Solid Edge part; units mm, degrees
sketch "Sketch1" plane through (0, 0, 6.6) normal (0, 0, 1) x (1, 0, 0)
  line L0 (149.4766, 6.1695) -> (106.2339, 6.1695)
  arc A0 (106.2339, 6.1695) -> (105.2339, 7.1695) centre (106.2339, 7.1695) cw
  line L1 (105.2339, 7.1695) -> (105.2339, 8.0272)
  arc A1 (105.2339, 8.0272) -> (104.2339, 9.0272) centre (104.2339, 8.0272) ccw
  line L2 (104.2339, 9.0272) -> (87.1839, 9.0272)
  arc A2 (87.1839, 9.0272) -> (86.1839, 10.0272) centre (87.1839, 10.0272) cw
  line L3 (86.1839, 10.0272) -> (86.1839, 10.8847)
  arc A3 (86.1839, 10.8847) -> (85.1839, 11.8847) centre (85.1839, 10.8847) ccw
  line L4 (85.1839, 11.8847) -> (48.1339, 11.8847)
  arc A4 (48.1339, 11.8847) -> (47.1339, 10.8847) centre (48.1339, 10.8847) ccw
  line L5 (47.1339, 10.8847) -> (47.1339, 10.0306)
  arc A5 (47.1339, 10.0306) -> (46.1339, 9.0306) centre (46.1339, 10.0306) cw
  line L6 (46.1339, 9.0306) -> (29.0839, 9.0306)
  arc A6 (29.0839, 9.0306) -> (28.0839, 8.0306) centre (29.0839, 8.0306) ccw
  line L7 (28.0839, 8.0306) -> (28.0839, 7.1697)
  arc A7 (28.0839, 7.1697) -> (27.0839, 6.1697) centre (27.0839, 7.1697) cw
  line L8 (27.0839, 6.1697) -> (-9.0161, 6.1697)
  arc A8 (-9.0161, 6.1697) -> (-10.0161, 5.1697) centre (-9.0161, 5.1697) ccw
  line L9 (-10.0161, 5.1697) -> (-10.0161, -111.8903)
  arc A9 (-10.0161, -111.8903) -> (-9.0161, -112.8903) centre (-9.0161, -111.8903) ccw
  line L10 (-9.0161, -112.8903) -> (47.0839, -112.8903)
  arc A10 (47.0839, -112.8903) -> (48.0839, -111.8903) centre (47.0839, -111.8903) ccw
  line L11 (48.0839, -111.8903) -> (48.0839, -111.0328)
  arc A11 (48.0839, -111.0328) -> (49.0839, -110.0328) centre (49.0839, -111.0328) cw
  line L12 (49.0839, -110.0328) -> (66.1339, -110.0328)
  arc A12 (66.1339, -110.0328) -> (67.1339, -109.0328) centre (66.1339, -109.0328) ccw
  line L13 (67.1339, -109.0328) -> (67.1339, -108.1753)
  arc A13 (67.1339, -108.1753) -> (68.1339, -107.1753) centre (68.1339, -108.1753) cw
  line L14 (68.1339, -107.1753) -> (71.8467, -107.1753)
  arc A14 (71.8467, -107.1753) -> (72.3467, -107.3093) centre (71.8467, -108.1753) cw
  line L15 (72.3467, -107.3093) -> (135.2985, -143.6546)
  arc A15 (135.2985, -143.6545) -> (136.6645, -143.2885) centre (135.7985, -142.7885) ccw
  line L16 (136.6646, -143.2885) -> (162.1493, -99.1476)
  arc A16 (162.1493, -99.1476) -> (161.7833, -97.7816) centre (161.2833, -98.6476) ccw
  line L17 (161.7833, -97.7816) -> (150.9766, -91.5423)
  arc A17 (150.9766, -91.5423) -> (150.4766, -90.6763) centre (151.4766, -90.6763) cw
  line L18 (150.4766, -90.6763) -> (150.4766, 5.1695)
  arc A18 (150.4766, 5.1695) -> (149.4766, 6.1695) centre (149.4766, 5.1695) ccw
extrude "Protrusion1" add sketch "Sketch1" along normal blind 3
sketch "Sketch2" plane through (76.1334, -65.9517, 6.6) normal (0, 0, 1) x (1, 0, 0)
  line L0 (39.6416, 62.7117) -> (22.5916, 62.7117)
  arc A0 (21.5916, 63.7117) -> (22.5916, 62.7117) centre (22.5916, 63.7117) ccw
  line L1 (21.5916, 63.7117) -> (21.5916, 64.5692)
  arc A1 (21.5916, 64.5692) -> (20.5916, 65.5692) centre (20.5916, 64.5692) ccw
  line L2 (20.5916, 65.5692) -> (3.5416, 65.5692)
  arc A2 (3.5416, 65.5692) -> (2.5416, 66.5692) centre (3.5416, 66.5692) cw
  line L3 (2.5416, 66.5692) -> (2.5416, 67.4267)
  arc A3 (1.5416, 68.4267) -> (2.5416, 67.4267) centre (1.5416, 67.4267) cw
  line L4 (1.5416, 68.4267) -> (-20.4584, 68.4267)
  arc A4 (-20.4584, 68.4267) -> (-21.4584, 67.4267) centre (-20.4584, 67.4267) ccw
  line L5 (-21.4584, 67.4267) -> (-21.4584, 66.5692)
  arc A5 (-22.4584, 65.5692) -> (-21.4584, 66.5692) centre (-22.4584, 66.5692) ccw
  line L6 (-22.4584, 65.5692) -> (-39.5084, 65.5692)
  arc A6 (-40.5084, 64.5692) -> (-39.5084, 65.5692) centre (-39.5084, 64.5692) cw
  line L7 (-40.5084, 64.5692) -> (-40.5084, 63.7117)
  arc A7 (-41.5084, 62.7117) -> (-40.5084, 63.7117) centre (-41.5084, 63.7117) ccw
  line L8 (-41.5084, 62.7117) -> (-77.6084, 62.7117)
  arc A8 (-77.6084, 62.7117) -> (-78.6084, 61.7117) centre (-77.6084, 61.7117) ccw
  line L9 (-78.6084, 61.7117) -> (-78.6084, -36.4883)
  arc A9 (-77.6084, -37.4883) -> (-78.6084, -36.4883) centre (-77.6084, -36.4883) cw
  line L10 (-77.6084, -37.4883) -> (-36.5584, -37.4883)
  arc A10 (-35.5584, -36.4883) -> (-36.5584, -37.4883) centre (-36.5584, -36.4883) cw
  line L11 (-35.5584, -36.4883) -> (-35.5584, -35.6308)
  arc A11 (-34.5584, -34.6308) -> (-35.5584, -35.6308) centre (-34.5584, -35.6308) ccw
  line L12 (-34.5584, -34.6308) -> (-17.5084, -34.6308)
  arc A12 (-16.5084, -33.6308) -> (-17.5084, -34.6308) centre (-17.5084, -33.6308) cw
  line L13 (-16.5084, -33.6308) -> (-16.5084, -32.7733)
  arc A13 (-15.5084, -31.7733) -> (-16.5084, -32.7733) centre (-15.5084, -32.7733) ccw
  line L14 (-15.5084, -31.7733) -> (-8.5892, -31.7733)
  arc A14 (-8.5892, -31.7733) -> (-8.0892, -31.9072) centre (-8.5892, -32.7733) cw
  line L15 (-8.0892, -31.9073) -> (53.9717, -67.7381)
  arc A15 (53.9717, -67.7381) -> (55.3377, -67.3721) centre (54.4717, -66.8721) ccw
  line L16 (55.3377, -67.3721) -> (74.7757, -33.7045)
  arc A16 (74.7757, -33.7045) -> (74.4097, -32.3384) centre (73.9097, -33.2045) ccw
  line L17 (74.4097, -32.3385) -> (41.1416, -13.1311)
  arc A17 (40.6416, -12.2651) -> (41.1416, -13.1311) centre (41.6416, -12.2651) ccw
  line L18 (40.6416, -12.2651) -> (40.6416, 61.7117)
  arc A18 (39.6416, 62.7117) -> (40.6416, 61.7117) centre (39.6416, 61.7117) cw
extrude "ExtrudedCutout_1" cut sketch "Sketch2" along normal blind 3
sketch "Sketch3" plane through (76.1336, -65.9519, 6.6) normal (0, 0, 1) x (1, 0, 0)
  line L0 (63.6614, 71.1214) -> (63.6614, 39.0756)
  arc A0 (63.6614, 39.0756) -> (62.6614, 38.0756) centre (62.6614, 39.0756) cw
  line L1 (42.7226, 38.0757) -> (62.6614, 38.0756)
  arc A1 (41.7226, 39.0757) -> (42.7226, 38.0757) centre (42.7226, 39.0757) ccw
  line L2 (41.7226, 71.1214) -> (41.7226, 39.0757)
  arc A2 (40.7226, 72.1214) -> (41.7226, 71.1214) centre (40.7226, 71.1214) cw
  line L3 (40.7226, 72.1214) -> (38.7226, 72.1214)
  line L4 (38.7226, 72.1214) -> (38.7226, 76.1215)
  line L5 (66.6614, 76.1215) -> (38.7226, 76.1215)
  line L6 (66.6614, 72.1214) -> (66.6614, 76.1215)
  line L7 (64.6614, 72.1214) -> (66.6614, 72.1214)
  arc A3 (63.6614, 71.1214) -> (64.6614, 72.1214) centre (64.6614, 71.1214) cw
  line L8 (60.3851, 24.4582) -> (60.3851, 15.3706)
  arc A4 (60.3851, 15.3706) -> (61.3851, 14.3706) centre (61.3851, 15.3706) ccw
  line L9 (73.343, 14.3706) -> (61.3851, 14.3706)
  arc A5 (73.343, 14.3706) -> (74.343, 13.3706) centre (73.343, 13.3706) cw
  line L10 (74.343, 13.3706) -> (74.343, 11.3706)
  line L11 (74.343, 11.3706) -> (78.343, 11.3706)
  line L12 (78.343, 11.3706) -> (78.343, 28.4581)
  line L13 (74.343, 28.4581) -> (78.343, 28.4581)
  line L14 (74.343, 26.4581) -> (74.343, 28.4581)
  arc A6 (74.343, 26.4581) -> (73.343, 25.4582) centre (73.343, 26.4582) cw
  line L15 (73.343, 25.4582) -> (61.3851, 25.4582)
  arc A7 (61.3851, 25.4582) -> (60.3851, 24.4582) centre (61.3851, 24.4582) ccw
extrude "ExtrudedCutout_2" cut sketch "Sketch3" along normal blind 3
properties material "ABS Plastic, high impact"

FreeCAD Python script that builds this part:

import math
import FreeCAD as App
import Part
import Sketcher
Q = App.Units.Quantity

doc = App.newDocument("Part")
params = doc.addObject("Spreadsheet::Sheet", "Params")
for row, (alias, value) in enumerate([
    ("sketch1_radius", "1 mm"),
    ("sketch1_width", "36.1 mm"),
    ("sketch1_width2", "56.1 mm"),
    ("sketch1_width3", "17.05 mm"),
    ("sketch1_width4", "37.05 mm"),
    ("pad1_length", "3 mm"),
    ("sketch2_radius", "1 mm"),
    ("sketch2_width", "22 mm"),
    ("sketch2_width2", "36.1 mm"),
    ("sketch2_height", "98.2 mm"),
    ("sketch2_width3", "17.05 mm"),
    ("pocket1_length", "3 mm"),
    ("sketch3_radius", "1 mm"),
    ("sketch3_width", "2 mm"),
    ("sketch3_width2", "4 mm"),
    ("pocket2_length", "3 mm"),
], start=1):
    params.set(f"A{row}", alias)
    params.set(f"B{row}", "=" + value)
    params.setAlias(f"B{row}", alias)

body = doc.addObject("PartDesign::Body", "Body")

sketch1 = body.newObject("Sketcher::SketchObject", "Sketch")
sketch1.AttachmentSupport = (doc.getObject("XY_Plane"), [""])
sketch1.MapMode = "FlatFace"
sketch1.AttachmentOffset = App.Placement(App.Vector(0, 0, 6.6), App.Rotation())
sketch1.addGeometry(Part.ArcOfCircle(Part.Circle(App.Vector(149.5, 5.2, 0), App.Vector(0, 0, 1), 1), math.radians(0), math.radians(90)), False)
sketch1.addGeometry(Part.LineSegment(App.Vector(149.5, 6.2, 0), App.Vector(106.2, 6.2, 0)), False)
sketch1.addGeometry(Part.ArcOfCircle(Part.Circle(App.Vector(106.2, 7.2, 0), App.Vector(0, 0, 1), 1), math.radians(180), math.radians(270)), False)
sketch1.addGeometry(Part.LineSegment(App.Vector(105.2, 7.2, 0), App.Vector(105.2, 8, 0)), False)
sketch1.addGeometry(Part.ArcOfCircle(Part.Circle(App.Vector(104.2, 8, 0), App.Vector(0, 0, 1), 1), math.radians(0), math.radians(90)), False)
sketch1.addGeometry(Part.LineSegment(App.Vector(104.2, 9, 0), App.Vector(87.2, 9, 0)), False)
sketch1.addGeometry(Part.ArcOfCircle(Part.Circle(App.Vector(87.2, 10, 0), App.Vector(0, 0, 1), 1), math.radians(180), math.radians(270)), False)
sketch1.addGeometry(Part.LineSegment(App.Vector(86.2, 10, 0), App.Vector(86.2, 10.9, 0)), False)
sketch1.addGeometry(Part.ArcOfCircle(Part.Circle(App.Vector(85.2, 10.9, 0), App.Vector(0, 0, 1), 1), math.radians(0), math.radians(90)), False)
sketch1.addGeometry(Part.LineSegment(App.Vector(85.2, 11.9, 0), App.Vector(48.1, 11.9, 0)), False)
sketch1.addGeometry(Part.ArcOfCircle(Part.Circle(App.Vector(48.1, 10.9, 0), App.Vector(0, 0, 1), 1), math.radians(90), math.radians(180)), False)
sketch1.addGeometry(Part.LineSegment(App.Vector(47.1, 10.9, 0), App.Vector(47.1, 10, 0)), False)
sketch1.addGeometry(Part.ArcOfCircle(Part.Circle(App.Vector(46.1, 10, 0), App.Vector(0, 0, 1), 1), math.radians(-90), math.radians(0)), False)
sketch1.addGeometry(Part.LineSegment(App.Vector(46.1, 9, 0), App.Vector(29.1, 9, 0)), False)
sketch1.addGeometry(Part.ArcOfCircle(Part.Circle(App.Vector(29.1, 8, 0), App.Vector(0, 0, 1), 1), math.radians(90), math.radians(180)), False)
sketch1.addGeometry(Part.LineSegment(App.Vector(28.1, 8, 0), App.Vector(28.1, 7.2, 0)), False)
sketch1.addGeometry(Part.ArcOfCircle(Part.Circle(App.Vector(27.1, 7.2, 0), App.Vector(0, 0, 1), 1), math.radians(-90), math.radians(0)), False)
sketch1.addGeometry(Part.LineSegment(App.Vector(27.1, 6.2, 0), App.Vector(-9, 6.2, 0)), False)
sketch1.addGeometry(Part.ArcOfCircle(Part.Circle(App.Vector(-9, 5.2, 0), App.Vector(0, 0, 1), 1), math.radians(90), math.radians(180)), False)
sketch1.addGeometry(Part.LineSegment(App.Vector(-10, 5.2, 0), App.Vector(-10, -111.9, 0)), False)
sketch1.addGeometry(Part.ArcOfCircle(Part.Circle(App.Vector(-9, -111.9, 0), App.Vector(0, 0, 1), 1), math.radians(180), math.radians(270)), False)
sketch1.addGeometry(Part.LineSegment(App.Vector(-9, -112.9, 0), App.Vector(47.1, -112.9, 0)), False)
sketch1.addGeometry(Part.ArcOfCircle(Part.Circle(App.Vector(47.1, -111.9, 0), App.Vector(0, 0, 1), 1), math.radians(-90), math.radians(0)), False)
sketch1.addGeometry(Part.LineSegment(App.Vector(48.1, -111.9, 0), App.Vector(48.1, -111, 0)), False)
sketch1.addGeometry(Part.ArcOfCircle(Part.Circle(App.Vector(49.1, -111, 0), App.Vector(0, 0, 1), 1), math.radians(90), math.radians(180)), False)
sketch1.addGeometry(Part.LineSegment(App.Vector(49.1, -110, 0), App.Vector(66.1, -110, 0)), False)
sketch1.addGeometry(Part.ArcOfCircle(Part.Circle(App.Vector(66.1, -109, 0), App.Vector(0, 0, 1), 1), math.radians(-90), math.radians(0)), False)
sketch1.addGeometry(Part.LineSegment(App.Vector(67.1, -109, 0), App.Vector(67.1, -108.2, 0)), False)
sketch1.addGeometry(Part.ArcOfCircle(Part.Circle(App.Vector(68.1, -108.2, 0), App.Vector(0, 0, 1), 1), math.radians(90), math.radians(180)), False)
sketch1.addGeometry(Part.LineSegment(App.Vector(68.1, -107.2, 0), App.Vector(71.8, -107.2, 0)), False)
sketch1.addGeometry(Part.ArcOfCircle(Part.Circle(App.Vector(71.8, -108.2, 0), App.Vector(0, 0, 1), 1), math.radians(60), math.radians(90)), False)
sketch1.addGeometry(Part.LineSegment(App.Vector(72.3, -107.3, 0), App.Vector(135.3, -143.7, 0)), False)
sketch1.addGeometry(Part.ArcOfCircle(Part.Circle(App.Vector(135.8, -142.8, 0), App.Vector(0, 0, 1), 1), math.radians(-120), math.radians(-30)), False)
sketch1.addGeometry(Part.LineSegment(App.Vector(136.7, -143.3, 0), App.Vector(162.1, -99.1, 0)), False)
sketch1.addGeometry(Part.ArcOfCircle(Part.Circle(App.Vector(161.3, -98.6, 0), App.Vector(0, 0, 1), 1), math.radians(-30), math.radians(60)), False)
sketch1.addGeometry(Part.LineSegment(App.Vector(161.8, -97.8, 0), App.Vector(151, -91.5, 0)), False)
sketch1.addGeometry(Part.ArcOfCircle(Part.Circle(App.Vector(151.5, -90.7, 0), App.Vector(0, 0, 1), 1), math.radians(180), math.radians(240)), False)
sketch1.addGeometry(Part.LineSegment(App.Vector(150.5, -90.7, 0), App.Vector(150.5, 5.2, 0)), False)
sketch1.addConstraint(Sketcher.Constraint("Tangent", 0, 2, 1, 1))
sketch1.addConstraint(Sketcher.Constraint("Tangent", 1, 2, 2, 2))
sketch1.addConstraint(Sketcher.Constraint("Tangent", 2, 1, 3, 1))
sketch1.addConstraint(Sketcher.Constraint("Tangent", 3, 2, 4, 1))
sketch1.addConstraint(Sketcher.Constraint("Tangent", 4, 2, 5, 1))
sketch1.addConstraint(Sketcher.Constraint("Tangent", 5, 2, 6, 2))
sketch1.addConstraint(Sketcher.Constraint("Tangent", 6, 1, 7, 1))
sketch1.addConstraint(Sketcher.Constraint("Tangent", 7, 2, 8, 1))
sketch1.addConstraint(Sketcher.Constraint("Tangent", 8, 2, 9, 1))
sketch1.addConstraint(Sketcher.Constraint("Tangent", 9, 2, 10, 1))
sketch1.addConstraint(Sketcher.Constraint("Tangent", 10, 2, 11, 1))
sketch1.addConstraint(Sketcher.Constraint("Tangent", 11, 2, 12, 2))
sketch1.addConstraint(Sketcher.Constraint("Tangent", 12, 1, 13, 1))
sketch1.addConstraint(Sketcher.Constraint("Tangent", 13, 2, 14, 1))
sketch1.addConstraint(Sketcher.Constraint("Tangent", 14, 2, 15, 1))
sketch1.addConstraint(Sketcher.Constraint("Tangent", 15, 2, 16, 2))
sketch1.addConstraint(Sketcher.Constraint("Tangent", 16, 1, 17, 1))
sketch1.addConstraint(Sketcher.Constraint("Tangent", 17, 2, 18, 1))
sketch1.addConstraint(Sketcher.Constraint("Tangent", 18, 2, 19, 1))
sketch1.addConstraint(Sketcher.Constraint("Tangent", 19, 2, 20, 1))
sketch1.addConstraint(Sketcher.Constraint("Tangent", 20, 2, 21, 1))
sketch1.addConstraint(Sketcher.Constraint("Tangent", 21, 2, 22, 1))
sketch1.addConstraint(Sketcher.Constraint("Tangent", 22, 2, 23, 1))
sketch1.addConstraint(Sketcher.Constraint("Tangent", 23, 2, 24, 2))
sketch1.addConstraint(Sketcher.Constraint("Tangent", 24, 1, 25, 1))
sketch1.addConstraint(Sketcher.Constraint("Tangent", 25, 2, 26, 1))
sketch1.addConstraint(Sketcher.Constraint("Tangent", 26, 2, 27, 1))
sketch1.addConstraint(Sketcher.Constraint("Tangent", 27, 2, 28, 2))
sketch1.addConstraint(Sketcher.Constraint("Tangent", 28, 1, 29, 1))
sketch1.addConstraint(Sketcher.Constraint("Tangent", 29, 2, 30, 2))
sketch1.addConstraint(Sketcher.Constraint("Tangent", 30, 1, 31, 1))
sketch1.addConstraint(Sketcher.Constraint("Tangent", 31, 2, 32, 1))
sketch1.addConstraint(Sketcher.Constraint("Tangent", 32, 2, 33, 1))
sketch1.addConstraint(Sketcher.Constraint("Tangent", 33, 2, 34, 1))
sketch1.addConstraint(Sketcher.Constraint("Tangent", 34, 2, 35, 1))
sketch1.addConstraint(Sketcher.Constraint("Tangent", 35, 2, 36, 2))
sketch1.addConstraint(Sketcher.Constraint("Tangent", 36, 1, 37, 1))
sketch1.addConstraint(Sketcher.Constraint("Tangent", 37, 2, 0, 1))
sketch1.addConstraint(Sketcher.Constraint("Horizontal", 1))
sketch1.addConstraint(Sketcher.Constraint("Vertical", 3))
sketch1.addConstraint(Sketcher.Constraint("Horizontal", 5))
sketch1.addConstraint(Sketcher.Constraint("Vertical", 7))
sketch1.addConstraint(Sketcher.Constraint("Horizontal", 9))
sketch1.addConstraint(Sketcher.Constraint("Vertical", 11))
sketch1.addConstraint(Sketcher.Constraint("Horizontal", 13))
sketch1.addConstraint(Sketcher.Constraint("Vertical", 15))
sketch1.addConstraint(Sketcher.Constraint("Horizontal", 17))
sketch1.addConstraint(Sketcher.Constraint("Vertical", 19))
sketch1.addConstraint(Sketcher.Constraint("Horizontal", 21))
sketch1.addConstraint(Sketcher.Constraint("Vertical", 23))
sketch1.addConstraint(Sketcher.Constraint("Horizontal", 25))
sketch1.addConstraint(Sketcher.Constraint("Vertical", 27))
sketch1.addConstraint(Sketcher.Constraint("Horizontal", 29))
sketch1.addConstraint(Sketcher.Constraint("Vertical", 37))
sketch1.addConstraint(Sketcher.Constraint("Equal", 0, 2))
sketch1.addConstraint(Sketcher.Constraint("Equal", 2, 4))
sketch1.addConstraint(Sketcher.Constraint("Equal", 4, 6))
sketch1.addConstraint(Sketcher.Constraint("Equal", 6, 8))
sketch1.addConstraint(Sketcher.Constraint("Equal", 8, 10))
sketch1.addConstraint(Sketcher.Constraint("Equal", 10, 12))
sketch1.addConstraint(Sketcher.Constraint("Equal", 12, 14))
sketch1.addConstraint(Sketcher.Constraint("Equal", 14, 16))
sketch1.addConstraint(Sketcher.Constraint("Equal", 16, 18))
sketch1.addConstraint(Sketcher.Constraint("Equal", 18, 20))
sketch1.addConstraint(Sketcher.Constraint("Equal", 20, 22))
sketch1.addConstraint(Sketcher.Constraint("Equal", 22, 24))
sketch1.addConstraint(Sketcher.Constraint("Equal", 24, 26))
sketch1.addConstraint(Sketcher.Constraint("Equal", 26, 28))
sketch1.addConstraint(Sketcher.Constraint("Equal", 28, 30))
sketch1.addConstraint(Sketcher.Constraint("Equal", 30, 32))
sketch1.addConstraint(Sketcher.Constraint("Equal", 32, 34))
sketch1.addConstraint(Sketcher.Constraint("Equal", 34, 36))
sketch1.addConstraint(Sketcher.Constraint("Perpendicular", 31, 33))
sketch1.addConstraint(Sketcher.Constraint("Perpendicular", 33, 35))
sketch1.addConstraint(Sketcher.Constraint("Horizontal", 2, 3, 16, 3))
sketch1.addConstraint(Sketcher.Constraint("Equal", 5, 13))
sketch1.addConstraint(Sketcher.Constraint("Equal", 13, 25))
sketch1.addConstraint(Sketcher.Constraint("Equal", 7, 23))
sketch1.addConstraint(Sketcher.Constraint("Equal", 23, 27))
sketch1.addConstraint(Sketcher.Constraint("Radius", 0, Q("1 mm")))
sketch1.addConstraint(Sketcher.Constraint("Angle", 31, Q("-30 deg")))
sketch1.addConstraint(Sketcher.Constraint("DistanceX", 17, 2, 17, 1, Q("36.1 mm")))
sketch1.addConstraint(Sketcher.Constraint("DistanceX", 21, 1, 21, 2, Q("56.1 mm")))
sketch1.addConstraint(Sketcher.Constraint("DistanceX", 5, 2, 5, 1, Q("17.05 mm")))
sketch1.addConstraint(Sketcher.Constraint("DistanceX", 9, 2, 9, 1, Q("37.05 mm")))
sketch1.addConstraint(Sketcher.Constraint("DistanceY", 19, 2, 19, 1, Q("117.06 mm")))
sketch1.addConstraint(Sketcher.Constraint("DistanceY", 11, 2, 11, 1, Q("0.854 mm")))
sketch1.addConstraint(Sketcher.Constraint("DistanceY", 15, 2, 15, 1, Q("0.861 mm")))
sketch1.addConstraint(Sketcher.Constraint("DistanceY", 26, 3, 6, 3, Q("119.06 mm")))
sketch1.addConstraint(Sketcher.Constraint("DistanceX", 30, 3, 36, 3, Q("79.63 mm")))
sketch1.addConstraint(Sketcher.Constraint("DistanceX", 1, 2, 1, 1, Q("43.2427 mm")))
sketch1.addConstraint(Sketcher.Constraint("DistanceY", 37, 1, 37, 2, Q("95.8458 mm")))
sketch1.addConstraint(Sketcher.Constraint("DistanceX", -1, 1, 2, 3, Q("106.234 mm")))
sketch1.addConstraint(Sketcher.Constraint("DistanceY", 34, 3, 0, 3, Q("103.817 mm")))
sketch1.addConstraint(Sketcher.Constraint("DistanceY", -1, 1, 0, 3, Q("5.1695 mm")))
sketch1.setExpression("Constraints[79]", "Params.sketch1_radius")
sketch1.setExpression("Constraints[81]", "Params.sketch1_width")
sketch1.setExpression("Constraints[82]", "Params.sketch1_width2")
sketch1.setExpression("Constraints[83]", "Params.sketch1_width3")
sketch1.setExpression("Constraints[84]", "Params.sketch1_width4")
pad1 = body.newObject("PartDesign::Pad", "Pad")
pad1.Profile = sketch1
pad1.setExpression("Length", "Params.pad1_length")

sketch2 = body.newObject("Sketcher::SketchObject", "Sketch001")
sketch2.AttachmentSupport = (doc.getObject("XY_Plane"), [""])
sketch2.MapMode = "FlatFace"
sketch2.AttachmentOffset = App.Placement(App.Vector(0, 0, 6.6), App.Rotation())
sketch2.addGeometry(Part.ArcOfCircle(Part.Circle(App.Vector(115.8, -4.2, 0), App.Vector(0, 0, 1), 1), math.radians(0), math.radians(90)), False)
sketch2.addGeometry(Part.LineSegment(App.Vector(115.8, -3.2, 0), App.Vector(98.7, -3.2, 0)), False)
sketch2.addGeometry(Part.ArcOfCircle(Part.Circle(App.Vector(98.7, -2.2, 0), App.Vector(0, 0, 1), 1), math.radians(180), math.radians(270)), False)
sketch2.addGeometry(Part.LineSegment(App.Vector(97.7, -2.2, 0), App.Vector(97.7, -1.4, 0)), False)
sketch2.addGeometry(Part.ArcOfCircle(Part.Circle(App.Vector(96.7, -1.4, 0), App.Vector(0, 0, 1), 1), math.radians(0), math.radians(90)), False)
sketch2.addGeometry(Part.LineSegment(App.Vector(96.7, -0.4, 0), App.Vector(79.7, -0.4, 0)), False)
sketch2.addGeometry(Part.ArcOfCircle(Part.Circle(App.Vector(79.7, 0.6, 0), App.Vector(0, 0, 1), 1), math.radians(180), math.radians(270)), False)
sketch2.addGeometry(Part.LineSegment(App.Vector(78.7, 0.6, 0), App.Vector(78.7, 1.5, 0)), False)
sketch2.addGeometry(Part.ArcOfCircle(Part.Circle(App.Vector(77.7, 1.5, 0), App.Vector(0, 0, 1), 1), math.radians(0), math.radians(90)), False)
sketch2.addGeometry(Part.LineSegment(App.Vector(77.7, 2.5, 0), App.Vector(55.7, 2.5, 0)), False)
sketch2.addGeometry(Part.ArcOfCircle(Part.Circle(App.Vector(55.7, 1.5, 0), App.Vector(0, 0, 1), 1), math.radians(90), math.radians(180)), False)
sketch2.addGeometry(Part.LineSegment(App.Vector(54.7, 1.5, 0), App.Vector(54.7, 0.6, 0)), False)
sketch2.addGeometry(Part.ArcOfCircle(Part.Circle(App.Vector(53.7, 0.6, 0), App.Vector(0, 0, 1), 1), math.radians(-90), math.radians(0)), False)
sketch2.addGeometry(Part.LineSegment(App.Vector(53.7, -0.4, 0), App.Vector(36.6, -0.4, 0)), False)
sketch2.addGeometry(Part.ArcOfCircle(Part.Circle(App.Vector(36.6, -1.4, 0), App.Vector(0, 0, 1), 1), math.radians(90), math.radians(180)), False)
sketch2.addGeometry(Part.LineSegment(App.Vector(35.6, -1.4, 0), App.Vector(35.6, -2.2, 0)), False)
sketch2.addGeometry(Part.ArcOfCircle(Part.Circle(App.Vector(34.6, -2.2, 0), App.Vector(0, 0, 1), 1), math.radians(-90), math.radians(0)), False)
sketch2.addGeometry(Part.LineSegment(App.Vector(34.6, -3.2, 0), App.Vector(-1.5, -3.2, 0)), False)
sketch2.addGeometry(Part.ArcOfCircle(Part.Circle(App.Vector(-1.5, -4.2, 0), App.Vector(0, 0, 1), 1), math.radians(90), math.radians(180)), False)
sketch2.addGeometry(Part.LineSegment(App.Vector(-2.5, -4.2, 0), App.Vector(-2.5, -102.4, 0)), False)
sketch2.addGeometry(Part.ArcOfCircle(Part.Circle(App.Vector(-1.5, -102.4, 0), App.Vector(0, 0, 1), 1), math.radians(180), math.radians(270)), False)
sketch2.addGeometry(Part.LineSegment(App.Vector(-1.5, -103.4, 0), App.Vector(39.6, -103.4, 0)), False)
sketch2.addGeometry(Part.ArcOfCircle(Part.Circle(App.Vector(39.6, -102.4, 0), App.Vector(0, 0, 1), 1), math.radians(-90), math.radians(0)), False)
sketch2.addGeometry(Part.LineSegment(App.Vector(40.6, -102.4, 0), App.Vector(40.6, -101.6, 0)), False)
sketch2.addGeometry(Part.ArcOfCircle(Part.Circle(App.Vector(41.6, -101.6, 0), App.Vector(0, 0, 1), 1), math.radians(90), math.radians(180)), False)
sketch2.addGeometry(Part.LineSegment(App.Vector(41.6, -100.6, 0), App.Vector(58.6, -100.6, 0)), False)
sketch2.addGeometry(Part.ArcOfCircle(Part.Circle(App.Vector(58.6, -99.6, 0), App.Vector(0, 0, 1), 1), math.radians(-90), math.radians(0)), False)
sketch2.addGeometry(Part.LineSegment(App.Vector(59.6, -99.6, 0), App.Vector(59.6, -98.7, 0)), False)
sketch2.addGeometry(Part.ArcOfCircle(Part.Circle(App.Vector(60.6, -98.7, 0), App.Vector(0, 0, 1), 1), math.radians(90), math.radians(180)), False)
sketch2.addGeometry(Part.LineSegment(App.Vector(60.6, -97.7, 0), App.Vector(67.5, -97.7, 0)), False)
sketch2.addGeometry(Part.ArcOfCircle(Part.Circle(App.Vector(67.5, -98.7, 0), App.Vector(0, 0, 1), 1), math.radians(60), math.radians(90)), False)
sketch2.addGeometry(Part.LineSegment(App.Vector(68, -97.9, 0), App.Vector(130.1, -133.7, 0)), False)
sketch2.addGeometry(Part.ArcOfCircle(Part.Circle(App.Vector(130.6, -132.8, 0), App.Vector(0, 0, 1), 1), math.radians(-120), math.radians(-30)), False)
sketch2.addGeometry(Part.LineSegment(App.Vector(131.5, -133.3, 0), App.Vector(150.9, -99.7, 0)), False)
sketch2.addGeometry(Part.ArcOfCircle(Part.Circle(App.Vector(150, -99.2, 0), App.Vector(0, 0, 1), 1), math.radians(-30), math.radians(60)), False)
sketch2.addGeometry(Part.LineSegment(App.Vector(150.5, -98.3, 0), App.Vector(117.3, -79.1, 0)), False)
sketch2.addGeometry(Part.ArcOfCircle(Part.Circle(App.Vector(117.8, -78.2, 0), App.Vector(0, 0, 1), 1), math.radians(180), math.radians(240)), False)
sketch2.addGeometry(Part.LineSegment(App.Vector(116.8, -78.2, 0), App.Vector(116.8, -4.2, 0)), False)
sketch2.addConstraint(Sketcher.Constraint("Tangent", 0, 2, 1, 1))
sketch2.addConstraint(Sketcher.Constraint("Tangent", 1, 2, 2, 2))
sketch2.addConstraint(Sketcher.Constraint("Tangent", 2, 1, 3, 1))
sketch2.addConstraint(Sketcher.Constraint("Tangent", 3, 2, 4, 1))
sketch2.addConstraint(Sketcher.Constraint("Tangent", 4, 2, 5, 1))
sketch2.addConstraint(Sketcher.Constraint("Tangent", 5, 2, 6, 2))
sketch2.addConstraint(Sketcher.Constraint("Tangent", 6, 1, 7, 1))
sketch2.addConstraint(Sketcher.Constraint("Tangent", 7, 2, 8, 1))
sketch2.addConstraint(Sketcher.Constraint("Tangent", 8, 2, 9, 1))
sketch2.addConstraint(Sketcher.Constraint("Tangent", 9, 2, 10, 1))
sketch2.addConstraint(Sketcher.Constraint("Tangent", 10, 2, 11, 1))
sketch2.addConstraint(Sketcher.Constraint("Tangent", 11, 2, 12, 2))
sketch2.addConstraint(Sketcher.Constraint("Tangent", 12, 1, 13, 1))
sketch2.addConstraint(Sketcher.Constraint("Tangent", 13, 2, 14, 1))
sketch2.addConstraint(Sketcher.Constraint("Tangent", 14, 2, 15, 1))
sketch2.addConstraint(Sketcher.Constraint("Tangent", 15, 2, 16, 2))
sketch2.addConstraint(Sketcher.Constraint("Tangent", 16, 1, 17, 1))
sketch2.addConstraint(Sketcher.Constraint("Tangent", 17, 2, 18, 1))
sketch2.addConstraint(Sketcher.Constraint("Tangent", 18, 2, 19, 1))
sketch2.addConstraint(Sketcher.Constraint("Tangent", 19, 2, 20, 1))
sketch2.addConstraint(Sketcher.Constraint("Tangent", 20, 2, 21, 1))
sketch2.addConstraint(Sketcher.Constraint("Tangent", 21, 2, 22, 1))
sketch2.addConstraint(Sketcher.Constraint("Tangent", 22, 2, 23, 1))
sketch2.addConstraint(Sketcher.Constraint("Tangent", 23, 2, 24, 2))
sketch2.addConstraint(Sketcher.Constraint("Tangent", 24, 1, 25, 1))
sketch2.addConstraint(Sketcher.Constraint("Tangent", 25, 2, 26, 1))
sketch2.addConstraint(Sketcher.Constraint("Tangent", 26, 2, 27, 1))
sketch2.addConstraint(Sketcher.Constraint("Tangent", 27, 2, 28, 2))
sketch2.addConstraint(Sketcher.Constraint("Tangent", 28, 1, 29, 1))
sketch2.addConstraint(Sketcher.Constraint("Tangent", 29, 2, 30, 2))
sketch2.addConstraint(Sketcher.Constraint("Tangent", 30, 1, 31, 1))
sketch2.addConstraint(Sketcher.Constraint("Tangent", 31, 2, 32, 1))
sketch2.addConstraint(Sketcher.Constraint("Tangent", 32, 2, 33, 1))
sketch2.addConstraint(Sketcher.Constraint("Tangent", 33, 2, 34, 1))
sketch2.addConstraint(Sketcher.Constraint("Tangent", 34, 2, 35, 1))
sketch2.addConstraint(Sketcher.Constraint("Tangent", 35, 2, 36, 2))
sketch2.addConstraint(Sketcher.Constraint("Tangent", 36, 1, 37, 1))
sketch2.addConstraint(Sketcher.Constraint("Tangent", 37, 2, 0, 1))
sketch2.addConstraint(Sketcher.Constraint("Horizontal", 1))
sketch2.addConstraint(Sketcher.Constraint("Vertical", 3))
sketch2.addConstraint(Sketcher.Constraint("Horizontal", 5))
sketch2.addConstraint(Sketcher.Constraint("Vertical", 7))
sketch2.addConstraint(Sketcher.Constraint("Horizontal", 9))
sketch2.addConstraint(Sketcher.Constraint("Vertical", 11))
sketch2.addConstraint(Sketcher.Constraint("Horizontal", 13))
sketch2.addConstraint(Sketcher.Constraint("Vertical", 15))
sketch2.addConstraint(Sketcher.Constraint("Horizontal", 17))
sketch2.addConstraint(Sketcher.Constraint("Vertical", 19))
sketch2.addConstraint(Sketcher.Constraint("Horizontal", 21))
sketch2.addConstraint(Sketcher.Constraint("Vertical", 23))
sketch2.addConstraint(Sketcher.Constraint("Horizontal", 25))
sketch2.addConstraint(Sketcher.Constraint("Vertical", 27))
sketch2.addConstraint(Sketcher.Constraint("Horizontal", 29))
sketch2.addConstraint(Sketcher.Constraint("Vertical", 37))
sketch2.addConstraint(Sketcher.Constraint("Equal", 0, 2))
sketch2.addConstraint(Sketcher.Constraint("Equal", 2, 4))
sketch2.addConstraint(Sketcher.Constraint("Equal", 4, 6))
sketch2.addConstraint(Sketcher.Constraint("Equal", 6, 8))
sketch2.addConstraint(Sketcher.Constraint("Equal", 8, 10))
sketch2.addConstraint(Sketcher.Constraint("Equal", 10, 12))
sketch2.addConstraint(Sketcher.Constraint("Equal", 12, 14))
sketch2.addConstraint(Sketcher.Constraint("Equal", 14, 16))
sketch2.addConstraint(Sketcher.Constraint("Equal", 16, 18))
sketch2.addConstraint(Sketcher.Constraint("Equal", 18, 20))
sketch2.addConstraint(Sketcher.Constraint("Equal", 20, 22))
sketch2.addConstraint(Sketcher.Constraint("Equal", 22, 24))
sketch2.addConstraint(Sketcher.Constraint("Equal", 24, 26))
sketch2.addConstraint(Sketcher.Constraint("Equal", 26, 28))
sketch2.addConstraint(Sketcher.Constraint("Equal", 28, 30))
sketch2.addConstraint(Sketcher.Constraint("Equal", 30, 32))
sketch2.addConstraint(Sketcher.Constraint("Equal", 32, 34))
sketch2.addConstraint(Sketcher.Constraint("Equal", 34, 36))
sketch2.addConstraint(Sketcher.Constraint("Perpendicular", 31, 33))
sketch2.addConstraint(Sketcher.Constraint("Perpendicular", 33, 35))
sketch2.addConstraint(Sketcher.Constraint("Horizontal", 6, 3, 12, 3))
sketch2.addConstraint(Sketcher.Constraint("Horizontal", 2, 3, 16, 3))
sketch2.addConstraint(Sketcher.Constraint("Equal", 1, 5))
sketch2.addConstraint(Sketcher.Constraint("Equal", 5, 13))
sketch2.addConstraint(Sketcher.Constraint("Equal", 13, 25))
sketch2.addConstraint(Sketcher.Constraint("Equal", 3, 7))
sketch2.addConstraint(Sketcher.Constraint("Equal", 15, 23))
sketch2.addConstraint(Sketcher.Constraint("Equal", 23, 27))
sketch2.addConstraint(Sketcher.Constraint("Radius", 0, Q("1 mm")))
sketch2.addConstraint(Sketcher.Constraint("DistanceX", 9, 2, 9, 1, Q("22 mm")))
sketch2.addConstraint(Sketcher.Constraint("Angle", 31, Q("-30 deg")))
sketch2.addConstraint(Sketcher.Constraint("DistanceX", 17, 2, 17, 1, Q("36.1 mm")))
sketch2.addConstraint(Sketcher.Constraint("DistanceY", 19, 2, 19, 1, Q("98.2 mm")))
sketch2.addConstraint(Sketcher.Constraint("DistanceX", 16, 3, 26, 3, Q("24 mm")))
sketch2.addConstraint(Sketcher.Constraint("DistanceX", 1, 2, 1, 1, Q("17.05 mm")))
sketch2.addConstraint(Sketcher.Constraint("DistanceY", 0, 3, -1, 1, Q("4.24 mm")))
sketch2.addConstraint(Sketcher.Constraint("DistanceX", 28, 3, 32, 3, Q("69.98 mm")))
sketch2.addConstraint(Sketcher.Constraint("Distance", 33, Q("38.876 mm")))
sketch2.addConstraint(Sketcher.Constraint("DistanceX", 29, 1, 29, 2, Q("6.9192 mm")))
sketch2.addConstraint(Sketcher.Constraint("DistanceY", 3, 1, 3, 2, Q("0.8575 mm")))
sketch2.addConstraint(Sketcher.Constraint("DistanceX", -1, 1, 0, 3, Q("115.775 mm")))
sketch2.setExpression("Constraints[82]", "Params.sketch2_radius")
sketch2.setExpression("Constraints[83]", "Params.sketch2_width")
sketch2.setExpression("Constraints[85]", "Params.sketch2_width2")
sketch2.setExpression("Constraints[86]", "Params.sketch2_height")
sketch2.setExpression("Constraints[88]", "Params.sketch2_width3")
pocket1 = body.newObject("PartDesign::Pocket", "Pocket")
pocket1.Profile = sketch2
pocket1.setExpression("Length", "Params.pocket1_length")
pocket1.Reversed = True

sketch3 = body.newObject("Sketcher::SketchObject", "Sketch002")
sketch3.AttachmentSupport = (doc.getObject("XY_Plane"), [""])
sketch3.MapMode = "FlatFace"
sketch3.AttachmentOffset = App.Placement(App.Vector(0, 0, 6.6), App.Rotation())
sketch3.addGeometry(Part.LineSegment(App.Vector(139.8, -26.9, 0), App.Vector(139.8, 5.2, 0)), False)
sketch3.addGeometry(Part.ArcOfCircle(Part.Circle(App.Vector(140.8, 5.2, 0), App.Vector(0, 0, 1), 1), math.radians(90), math.radians(180)), False)
sketch3.addGeometry(Part.LineSegment(App.Vector(140.8, 6.2, 0), App.Vector(142.8, 6.2, 0)), False)
sketch3.addGeometry(Part.LineSegment(App.Vector(142.8, 6.2, 0), App.Vector(142.8, 10.2, 0)), False)
sketch3.addGeometry(Part.LineSegment(App.Vector(142.8, 10.2, 0), App.Vector(114.9, 10.2, 0)), False)
sketch3.addGeometry(Part.LineSegment(App.Vector(114.9, 10.2, 0), App.Vector(114.9, 6.2, 0)), False)
sketch3.addGeometry(Part.LineSegment(App.Vector(114.9, 6.2, 0), App.Vector(116.9, 6.2, 0)), False)
sketch3.addGeometry(Part.ArcOfCircle(Part.Circle(App.Vector(116.9, 5.2, 0), App.Vector(0, 0, 1), 1), math.radians(0), math.radians(90)), False)
sketch3.addGeometry(Part.LineSegment(App.Vector(117.9, 5.2, 0), App.Vector(117.9, -26.9, 0)), False)
sketch3.addGeometry(Part.ArcOfCircle(Part.Circle(App.Vector(118.9, -26.9, 0), App.Vector(0, 0, 1), 1), math.radians(180), math.radians(270)), False)
sketch3.addGeometry(Part.LineSegment(App.Vector(118.9, -27.9, 0), App.Vector(138.8, -27.9, 0)), False)
sketch3.addGeometry(Part.ArcOfCircle(Part.Circle(App.Vector(138.8, -26.9, 0), App.Vector(0, 0, 1), 1), math.radians(-90), math.radians(0)), False)
sketch3.addGeometry(Part.ArcOfCircle(Part.Circle(App.Vector(137.5, -41.5, 0), App.Vector(0, 0, 1), 1), math.radians(90), math.radians(180)), False)
sketch3.addGeometry(Part.LineSegment(App.Vector(136.5, -41.5, 0), App.Vector(136.5, -50.6, 0)), False)
sketch3.addGeometry(Part.ArcOfCircle(Part.Circle(App.Vector(137.5, -50.6, 0), App.Vector(0, 0, 1), 1), math.radians(180), math.radians(270)), False)
sketch3.addGeometry(Part.LineSegment(App.Vector(137.5, -51.6, 0), App.Vector(149.5, -51.6, 0)), False)
sketch3.addGeometry(Part.ArcOfCircle(Part.Circle(App.Vector(149.5, -52.6, 0), App.Vector(0, 0, 1), 1), math.radians(0), math.radians(90)), False)
sketch3.addGeometry(Part.LineSegment(App.Vector(150.5, -52.6, 0), App.Vector(150.5, -54.6, 0)), False)
sketch3.addGeometry(Part.LineSegment(App.Vector(150.5, -54.6, 0), App.Vector(154.5, -54.6, 0)), False)
sketch3.addGeometry(Part.LineSegment(App.Vector(154.5, -54.6, 0), App.Vector(154.5, -37.5, 0)), False)
sketch3.addGeometry(Part.LineSegment(App.Vector(154.5, -37.5, 0), App.Vector(150.5, -37.5, 0)), False)
sketch3.addGeometry(Part.LineSegment(App.Vector(150.5, -37.5, 0), App.Vector(150.5, -39.5, 0)), False)
sketch3.addGeometry(Part.ArcOfCircle(Part.Circle(App.Vector(149.5, -39.5, 0), App.Vector(0, 0, 1), 1), math.radians(-90), math.radians(0)), False)
sketch3.addGeometry(Part.LineSegment(App.Vector(149.5, -40.5, 0), App.Vector(137.5, -40.5, 0)), False)
sketch3.addConstraint(Sketcher.Constraint("Tangent", 0, 2, 1, 2))
sketch3.addConstraint(Sketcher.Constraint("Tangent", 1, 1, 2, 1))
sketch3.addConstraint(Sketcher.Constraint("Coincident", 2, 2, 3, 1))
sketch3.addConstraint(Sketcher.Constraint("Coincident", 3, 2, 4, 1))
sketch3.addConstraint(Sketcher.Constraint("Coincident", 4, 2, 5, 1))
sketch3.addConstraint(Sketcher.Constraint("Coincident", 5, 2, 6, 1))
sketch3.addConstraint(Sketcher.Constraint("Tangent", 6, 2, 7, 2))
sketch3.addConstraint(Sketcher.Constraint("Tangent", 7, 1, 8, 1))
sketch3.addConstraint(Sketcher.Constraint("Tangent", 8, 2, 9, 1))
sketch3.addConstraint(Sketcher.Constraint("Tangent", 9, 2, 10, 1))
sketch3.addConstraint(Sketcher.Constraint("Tangent", 10, 2, 11, 1))
sketch3.addConstraint(Sketcher.Constraint("Tangent", 11, 2, 0, 1))
sketch3.addConstraint(Sketcher.Constraint("Tangent", 12, 2, 13, 1))
sketch3.addConstraint(Sketcher.Constraint("Tangent", 13, 2, 14, 1))
sketch3.addConstraint(Sketcher.Constraint("Tangent", 14, 2, 15, 1))
sketch3.addConstraint(Sketcher.Constraint("Tangent", 15, 2, 16, 2))
sketch3.addConstraint(Sketcher.Constraint("Tangent", 16, 1, 17, 1))
sketch3.addConstraint(Sketcher.Constraint("Coincident", 17, 2, 18, 1))
sketch3.addConstraint(Sketcher.Constraint("Coincident", 18, 2, 19, 1))
sketch3.addConstraint(Sketcher.Constraint("Coincident", 19, 2, 20, 1))
sketch3.addConstraint(Sketcher.Constraint("Coincident", 20, 2, 21, 1))
sketch3.addConstraint(Sketcher.Constraint("Tangent", 21, 2, 22, 2))
sketch3.addConstraint(Sketcher.Constraint("Tangent", 22, 1, 23, 1))
sketch3.addConstraint(Sketcher.Constraint("Tangent", 23, 2, 12, 1))
sketch3.addConstraint(Sketcher.Constraint("Vertical", 0))
sketch3.addConstraint(Sketcher.Constraint("Horizontal", 2))
sketch3.addConstraint(Sketcher.Constraint("Vertical", 3))
sketch3.addConstraint(Sketcher.Constraint("Horizontal", 4))
sketch3.addConstraint(Sketcher.Constraint("Vertical", 5))
sketch3.addConstraint(Sketcher.Constraint("Horizontal", 6))
sketch3.addConstraint(Sketcher.Constraint("Vertical", 8))
sketch3.addConstraint(Sketcher.Constraint("Horizontal", 10))
sketch3.addConstraint(Sketcher.Constraint("Vertical", 13))
sketch3.addConstraint(Sketcher.Constraint("Horizontal", 15))
sketch3.addConstraint(Sketcher.Constraint("Vertical", 17))
sketch3.addConstraint(Sketcher.Constraint("Horizontal", 18))
sketch3.addConstraint(Sketcher.Constraint("Vertical", 19))
sketch3.addConstraint(Sketcher.Constraint("Horizontal", 20))
sketch3.addConstraint(Sketcher.Constraint("Vertical", 21))
sketch3.addConstraint(Sketcher.Constraint("Horizontal", 23))
sketch3.addConstraint(Sketcher.Constraint("Equal", 1, 7))
sketch3.addConstraint(Sketcher.Constraint("Equal", 7, 9))
sketch3.addConstraint(Sketcher.Constraint("Equal", 9, 11))
sketch3.addConstraint(Sketcher.Constraint("Equal", 11, 12))
sketch3.addConstraint(Sketcher.Constraint("Equal", 12, 14))
sketch3.addConstraint(Sketcher.Constraint("Equal", 14, 16))
sketch3.addConstraint(Sketcher.Constraint("Equal", 16, 22))
sketch3.addConstraint(Sketcher.Constraint("Horizontal", 1, 3, 7, 3))
sketch3.addConstraint(Sketcher.Constraint("Vertical", 16, 3, 22, 3))
sketch3.addConstraint(Sketcher.Constraint("Equal", 2, 6))
sketch3.addConstraint(Sketcher.Constraint("Equal", 20, 3))
sketch3.addConstraint(Sketcher.Constraint("Equal", 6, 17))
sketch3.addConstraint(Sketcher.Constraint("Equal", 17, 21))
sketch3.addConstraint(Sketcher.Constraint("Radius", 1, Q("1 mm")))
sketch3.addConstraint(Sketcher.Constraint("DistanceX", 2, 1, 2, 2, Q("2 mm")))
sketch3.addConstraint(Sketcher.Constraint("DistanceX", 18, 1, 18, 2, Q("4 mm")))
sketch3.addConstraint(Sketcher.Constraint("DistanceX", 15, 1, 15, 2, Q("11.958 mm")))
sketch3.addConstraint(Sketcher.Constraint("DistanceX", 4, 2, 4, 1, Q("27.9388 mm")))
sketch3.addConstraint(Sketcher.Constraint("DistanceY", 0, 1, 0, 2, Q("32.0458 mm")))
sketch3.addConstraint(Sketcher.Constraint("DistanceY", 13, 2, 13, 1, Q("9.0876 mm")))
sketch3.addConstraint(Sketcher.Constraint("DistanceX", -1, 1, 1, 3, Q("140.795 mm")))
sketch3.addConstraint(Sketcher.Constraint("DistanceY", 14, 3, 11, 3, Q("23.705 mm")))
sketch3.addConstraint(Sketcher.Constraint("DistanceY", -1, 1, 1, 3, Q("5.1695 mm")))
sketch3.addConstraint(Sketcher.Constraint("DistanceX", -1, 1, 12, 3, Q("137.5187 mm")))
sketch3.setExpression("Constraints[53]", "Params.sketch3_radius")
sketch3.setExpression("Constraints[54]", "Params.sketch3_width")
sketch3.setExpression("Constraints[55]", "Params.sketch3_width2")
pocket2 = body.newObject("PartDesign::Pocket", "Pocket001")
pocket2.Profile = sketch3
pocket2.setExpression("Length", "Params.pocket2_length")
pocket2.Reversed = True

doc.recompute()
